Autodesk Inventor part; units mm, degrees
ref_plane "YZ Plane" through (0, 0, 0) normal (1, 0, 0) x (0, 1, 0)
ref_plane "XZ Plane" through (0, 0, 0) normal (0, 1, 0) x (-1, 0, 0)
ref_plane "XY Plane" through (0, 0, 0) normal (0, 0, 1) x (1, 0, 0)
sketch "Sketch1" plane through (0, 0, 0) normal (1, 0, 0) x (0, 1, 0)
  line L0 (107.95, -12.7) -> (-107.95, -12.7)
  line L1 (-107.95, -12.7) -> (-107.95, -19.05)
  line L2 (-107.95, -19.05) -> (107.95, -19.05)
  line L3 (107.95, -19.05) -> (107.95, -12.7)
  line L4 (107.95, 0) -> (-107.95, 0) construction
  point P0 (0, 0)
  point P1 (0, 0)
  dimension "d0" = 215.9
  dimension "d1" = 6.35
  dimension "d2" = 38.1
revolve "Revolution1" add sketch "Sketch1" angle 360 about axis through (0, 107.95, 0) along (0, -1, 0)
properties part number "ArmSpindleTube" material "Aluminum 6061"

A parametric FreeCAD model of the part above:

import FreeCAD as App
import Part
import Sketcher
from FreeCAD import Vector
Q = App.Units.Quantity

doc = App.newDocument("Part")
params = doc.addObject("Spreadsheet::Sheet", "Params")
for row, (alias, value) in enumerate([
    ("sketch1_width", "8.5 in"),
    ("sketch1_height", "0.25 in"),
    ("revolution_angle", "360 deg"),
], start=1):
    params.set(f"A{row}", alias)
    params.set(f"B{row}", "=" + value)
    params.setAlias(f"B{row}", alias)

body = doc.addObject("PartDesign::Body", "Body")

# Sketch on YZ plane
sketch1 = body.newObject("Sketcher::SketchObject", "Sketch")
sketch1.AttachmentSupport = (doc.getObject("YZ_Plane"), [""])
sketch1.MapMode = "FlatFace"
sketch1.addGeometry(Part.LineSegment(Vector(107.95, -19.05, 0), Vector(107.95, -12.7, 0)), False)
sketch1.addGeometry(Part.LineSegment(Vector(107.95, -12.7, 0), Vector(-107.95, -12.7, 0)), False)
sketch1.addGeometry(Part.LineSegment(Vector(-107.95, -12.7, 0), Vector(-107.95, -19.05, 0)), False)
sketch1.addGeometry(Part.LineSegment(Vector(-107.95, -19.05, 0), Vector(107.95, -19.05, 0)), False)
sketch1.addConstraint(Sketcher.Constraint("Coincident", 0, 2, 1, 1))
sketch1.addConstraint(Sketcher.Constraint("Coincident", 1, 2, 2, 1))
sketch1.addConstraint(Sketcher.Constraint("Coincident", 2, 2, 3, 1))
sketch1.addConstraint(Sketcher.Constraint("Coincident", 3, 2, 0, 1))
sketch1.addConstraint(Sketcher.Constraint("Vertical", 0))
sketch1.addConstraint(Sketcher.Constraint("Horizontal", 1))
sketch1.addConstraint(Sketcher.Constraint("Vertical", 2))
sketch1.addConstraint(Sketcher.Constraint("Horizontal", 3))
sketch1.addConstraint(Sketcher.Constraint("DistanceX", 1, 2, 1, 1, Q("8.5 in")))
sketch1.addConstraint(Sketcher.Constraint("DistanceY", 0, 1, 0, 2, Q("0.25 in")))
sketch1.addConstraint(Sketcher.Constraint("DistanceY", 0, 2, -1, 1, Q("0.5 in")))
sketch1.addConstraint(Sketcher.Constraint("DistanceX", -1, 1, 0, 2, Q("4.25 in")))
sketch1.setExpression("Constraints[8]", "Params.sketch1_width")
sketch1.setExpression("Constraints[9]", "Params.sketch1_height")
revolution = body.newObject("PartDesign::Revolution", "Revolution")
revolution.Profile = sketch1
revolution.ReferenceAxis = (sketch1, ["H_Axis"])
revolution.setExpression("Angle", "Params.revolution_angle")

doc.recompute()
